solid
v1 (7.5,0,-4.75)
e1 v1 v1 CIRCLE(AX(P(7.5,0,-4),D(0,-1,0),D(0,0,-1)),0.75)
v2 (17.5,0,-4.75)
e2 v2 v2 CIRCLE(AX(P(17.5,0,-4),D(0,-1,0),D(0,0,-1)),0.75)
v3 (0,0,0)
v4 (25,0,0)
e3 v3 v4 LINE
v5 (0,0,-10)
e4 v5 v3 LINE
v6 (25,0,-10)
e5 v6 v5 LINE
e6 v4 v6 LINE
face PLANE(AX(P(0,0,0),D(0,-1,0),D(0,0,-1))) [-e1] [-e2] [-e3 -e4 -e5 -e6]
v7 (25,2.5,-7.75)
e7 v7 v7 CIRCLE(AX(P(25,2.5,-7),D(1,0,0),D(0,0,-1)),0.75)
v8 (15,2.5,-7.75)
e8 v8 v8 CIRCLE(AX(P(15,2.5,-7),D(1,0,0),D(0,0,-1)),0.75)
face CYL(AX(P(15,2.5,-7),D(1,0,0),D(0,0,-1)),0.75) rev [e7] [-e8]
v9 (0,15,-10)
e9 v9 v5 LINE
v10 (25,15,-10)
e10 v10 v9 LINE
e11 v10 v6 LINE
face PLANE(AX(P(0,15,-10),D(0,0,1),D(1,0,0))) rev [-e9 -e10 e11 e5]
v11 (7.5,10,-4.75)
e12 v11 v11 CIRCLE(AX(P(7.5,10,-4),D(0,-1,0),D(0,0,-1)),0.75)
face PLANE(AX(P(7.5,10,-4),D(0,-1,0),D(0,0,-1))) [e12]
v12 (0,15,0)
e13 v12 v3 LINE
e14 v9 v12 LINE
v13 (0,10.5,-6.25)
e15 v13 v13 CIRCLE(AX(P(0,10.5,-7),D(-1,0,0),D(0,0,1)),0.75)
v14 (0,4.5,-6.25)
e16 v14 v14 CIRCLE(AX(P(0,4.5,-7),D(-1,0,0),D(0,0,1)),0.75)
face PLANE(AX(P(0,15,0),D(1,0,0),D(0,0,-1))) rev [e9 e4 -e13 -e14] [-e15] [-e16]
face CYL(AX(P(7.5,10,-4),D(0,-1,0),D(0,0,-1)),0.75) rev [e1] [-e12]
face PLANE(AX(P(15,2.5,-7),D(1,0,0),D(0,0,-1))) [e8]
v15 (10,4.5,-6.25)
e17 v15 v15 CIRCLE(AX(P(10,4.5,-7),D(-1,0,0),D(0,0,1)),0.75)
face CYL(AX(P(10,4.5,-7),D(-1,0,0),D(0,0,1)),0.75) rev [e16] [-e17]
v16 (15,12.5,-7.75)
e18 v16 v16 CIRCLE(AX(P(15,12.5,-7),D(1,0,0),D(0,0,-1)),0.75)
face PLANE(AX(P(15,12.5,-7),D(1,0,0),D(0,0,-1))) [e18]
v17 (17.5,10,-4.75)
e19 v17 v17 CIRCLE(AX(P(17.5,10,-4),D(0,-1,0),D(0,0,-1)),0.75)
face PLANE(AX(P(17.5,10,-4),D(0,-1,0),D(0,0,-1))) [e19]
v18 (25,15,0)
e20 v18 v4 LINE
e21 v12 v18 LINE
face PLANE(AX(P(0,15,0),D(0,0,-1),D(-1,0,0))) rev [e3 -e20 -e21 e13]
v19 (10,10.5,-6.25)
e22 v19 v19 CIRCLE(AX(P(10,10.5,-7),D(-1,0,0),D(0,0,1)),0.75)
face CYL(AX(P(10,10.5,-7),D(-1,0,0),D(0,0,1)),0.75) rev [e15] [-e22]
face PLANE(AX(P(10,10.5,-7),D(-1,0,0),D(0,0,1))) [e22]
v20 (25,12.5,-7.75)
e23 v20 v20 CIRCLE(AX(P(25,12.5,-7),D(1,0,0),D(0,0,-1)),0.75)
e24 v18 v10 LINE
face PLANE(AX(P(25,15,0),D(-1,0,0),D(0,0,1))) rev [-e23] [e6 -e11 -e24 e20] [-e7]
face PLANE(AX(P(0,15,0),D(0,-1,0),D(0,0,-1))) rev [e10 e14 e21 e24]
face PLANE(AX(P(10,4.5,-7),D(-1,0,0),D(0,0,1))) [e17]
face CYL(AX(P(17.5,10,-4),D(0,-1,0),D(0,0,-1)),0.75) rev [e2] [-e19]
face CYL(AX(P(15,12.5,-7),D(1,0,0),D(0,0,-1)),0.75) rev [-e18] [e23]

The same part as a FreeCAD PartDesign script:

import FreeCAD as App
import Part
import Sketcher
Q = App.Units.Quantity


def add_polygon(sketch, points):
    """Adds a closed chain of lines whose ends are joined by coincident constraints."""
    first, n = sketch.GeometryCount, len(points)
    for a, b in zip(points, points[1:] + points[:1]):
        sketch.addGeometry(Part.LineSegment(App.Vector(*a, 0), App.Vector(*b, 0)), False)
    for i in range(n):
        sketch.addConstraint(Sketcher.Constraint("Coincident", first + i, 2, first + (i + 1) % n, 1))

doc = App.newDocument("Part")
params = doc.addObject("Spreadsheet::Sheet", "Params")
for row, (alias, value) in enumerate([
    ("sketch1_width", "25 mm"),
    ("sketch1_height", "10 mm"),
    ("pad1_length", "15 mm"),
    ("sketch2_diameter", "1.5 mm"),
    ("pocket1_length", "10 mm"),
    ("sketch3_diameter", "1.5 mm"),
    ("pocket2_length", "10 mm"),
    ("sketch4_diameter", "1.5 mm"),
    ("pocket3_length", "10 mm"),
], start=1):
    params.set(f"A{row}", alias)
    params.set(f"B{row}", "=" + value)
    params.setAlias(f"B{row}", alias)

body = doc.addObject("PartDesign::Body", "Body")

sketch1 = body.newObject("Sketcher::SketchObject", "Sketch")
sketch1.AttachmentSupport = (doc.getObject("XZ_Plane"), [""])
sketch1.MapMode = "FlatFace"
add_polygon(sketch1, [(0, -10), (0, 0), (25, 0), (25, -10)])
sketch1.addConstraint(Sketcher.Constraint("Vertical", 0))
sketch1.addConstraint(Sketcher.Constraint("Horizontal", 1))
sketch1.addConstraint(Sketcher.Constraint("Vertical", 2))
sketch1.addConstraint(Sketcher.Constraint("Horizontal", 3))
sketch1.addConstraint(Sketcher.Constraint("Coincident", 0, 2, -1, 1))
sketch1.addConstraint(Sketcher.Constraint("DistanceX", 1, 1, 1, 2, Q("25 mm")))
sketch1.addConstraint(Sketcher.Constraint("DistanceY", 0, 1, 0, 2, Q("10 mm")))
sketch1.setExpression("Constraints[9]", "Params.sketch1_width")
sketch1.setExpression("Constraints[10]", "Params.sketch1_height")
pad1 = body.newObject("PartDesign::Pad", "Pad")
pad1.Profile = sketch1
pad1.setExpression("Length", "Params.pad1_length")
pad1.Reversed = True

sketch2 = body.newObject("Sketcher::SketchObject", "Sketch001")
sketch2.AttachmentSupport = (doc.getObject("XZ_Plane"), [""])
sketch2.MapMode = "FlatFace"
sketch2.addGeometry(Part.Circle(App.Vector(7.5, -4, 0), App.Vector(0, 0, 1), 0.8), False)
sketch2.addGeometry(Part.Circle(App.Vector(17.5, -4, 0), App.Vector(0, 0, 1), 0.8), False)
sketch2.addConstraint(Sketcher.Constraint("Equal", 0, 1))
sketch2.addConstraint(Sketcher.Constraint("Horizontal", 0, 3, 1, 3))
sketch2.addConstraint(Sketcher.Constraint("Diameter", 0, Q("1.5 mm")))
sketch2.addConstraint(Sketcher.Constraint("DistanceY", 0, 3, -1, 1, Q("4 mm")))
sketch2.addConstraint(Sketcher.Constraint("DistanceX", 0, 3, 1, 3, Q("10 mm")))
sketch2.addConstraint(Sketcher.Constraint("DistanceX", -1, 1, 0, 3, Q("7.5 mm")))
sketch2.setExpression("Constraints[2]", "Params.sketch2_diameter")
pocket1 = body.newObject("PartDesign::Pocket", "Pocket")
pocket1.Profile = sketch2
pocket1.setExpression("Length", "Params.pocket1_length")

sketch3 = body.newObject("Sketcher::SketchObject", "Sketch002")
sketch3.AttachmentSupport = (doc.getObject("YZ_Plane"), [""])
sketch3.MapMode = "FlatFace"
sketch3.addGeometry(Part.Circle(App.Vector(10.5, -7, 0), App.Vector(0, 0, 1), 0.8), False)
sketch3.addGeometry(Part.Circle(App.Vector(4.5, -7, 0), App.Vector(0, 0, 1), 0.8), False)
sketch3.addConstraint(Sketcher.Constraint("Equal", 0, 1))
sketch3.addConstraint(Sketcher.Constraint("Horizontal", 0, 3, 1, 3))
sketch3.addConstraint(Sketcher.Constraint("Diameter", 0, Q("1.5 mm")))
sketch3.addConstraint(Sketcher.Constraint("DistanceY", 0, 3, -1, 1, Q("7 mm")))
sketch3.addConstraint(Sketcher.Constraint("DistanceX", 1, 3, 0, 3, Q("6 mm")))
sketch3.addConstraint(Sketcher.Constraint("DistanceX", -1, 1, 0, 3, Q("10.5 mm")))
sketch3.setExpression("Constraints[2]", "Params.sketch3_diameter")
pocket2 = body.newObject("PartDesign::Pocket", "Pocket001")
pocket2.Profile = sketch3
pocket2.setExpression("Length", "Params.pocket2_length")
pocket2.Reversed = True

sketch4 = body.newObject("Sketcher::SketchObject", "Sketch003")
sketch4.AttachmentSupport = (doc.getObject("YZ_Plane"), [""])
sketch4.MapMode = "FlatFace"
sketch4.AttachmentOffset = App.Placement(App.Vector(0, 0, 25), App.Rotation())
sketch4.addGeometry(Part.Circle(App.Vector(12.5, -7, 0), App.Vector(0, 0, 1), 0.8), False)
sketch4.addGeometry(Part.Circle(App.Vector(2.5, -7, 0), App.Vector(0, 0, 1), 0.8), False)
sketch4.addConstraint(Sketcher.Constraint("Equal", 0, 1))
sketch4.addConstraint(Sketcher.Constraint("Horizontal", 0, 3, 1, 3))
sketch4.addConstraint(Sketcher.Constraint("Diameter", 0, Q("1.5 mm")))
sketch4.addConstraint(Sketcher.Constraint("DistanceY", 0, 3, -1, 1, Q("7 mm")))
sketch4.addConstraint(Sketcher.Constraint("DistanceX", 1, 3, 0, 3, Q("10 mm")))
sketch4.addConstraint(Sketcher.Constraint("DistanceX", -1, 1, 0, 3, Q("12.5 mm")))
sketch4.setExpression("Constraints[2]", "Params.sketch4_diameter")
pocket3 = body.newObject("PartDesign::Pocket", "Pocket002")
pocket3.Profile = sketch4
pocket3.setExpression("Length", "Params.pocket3_length")

doc.recompute()
